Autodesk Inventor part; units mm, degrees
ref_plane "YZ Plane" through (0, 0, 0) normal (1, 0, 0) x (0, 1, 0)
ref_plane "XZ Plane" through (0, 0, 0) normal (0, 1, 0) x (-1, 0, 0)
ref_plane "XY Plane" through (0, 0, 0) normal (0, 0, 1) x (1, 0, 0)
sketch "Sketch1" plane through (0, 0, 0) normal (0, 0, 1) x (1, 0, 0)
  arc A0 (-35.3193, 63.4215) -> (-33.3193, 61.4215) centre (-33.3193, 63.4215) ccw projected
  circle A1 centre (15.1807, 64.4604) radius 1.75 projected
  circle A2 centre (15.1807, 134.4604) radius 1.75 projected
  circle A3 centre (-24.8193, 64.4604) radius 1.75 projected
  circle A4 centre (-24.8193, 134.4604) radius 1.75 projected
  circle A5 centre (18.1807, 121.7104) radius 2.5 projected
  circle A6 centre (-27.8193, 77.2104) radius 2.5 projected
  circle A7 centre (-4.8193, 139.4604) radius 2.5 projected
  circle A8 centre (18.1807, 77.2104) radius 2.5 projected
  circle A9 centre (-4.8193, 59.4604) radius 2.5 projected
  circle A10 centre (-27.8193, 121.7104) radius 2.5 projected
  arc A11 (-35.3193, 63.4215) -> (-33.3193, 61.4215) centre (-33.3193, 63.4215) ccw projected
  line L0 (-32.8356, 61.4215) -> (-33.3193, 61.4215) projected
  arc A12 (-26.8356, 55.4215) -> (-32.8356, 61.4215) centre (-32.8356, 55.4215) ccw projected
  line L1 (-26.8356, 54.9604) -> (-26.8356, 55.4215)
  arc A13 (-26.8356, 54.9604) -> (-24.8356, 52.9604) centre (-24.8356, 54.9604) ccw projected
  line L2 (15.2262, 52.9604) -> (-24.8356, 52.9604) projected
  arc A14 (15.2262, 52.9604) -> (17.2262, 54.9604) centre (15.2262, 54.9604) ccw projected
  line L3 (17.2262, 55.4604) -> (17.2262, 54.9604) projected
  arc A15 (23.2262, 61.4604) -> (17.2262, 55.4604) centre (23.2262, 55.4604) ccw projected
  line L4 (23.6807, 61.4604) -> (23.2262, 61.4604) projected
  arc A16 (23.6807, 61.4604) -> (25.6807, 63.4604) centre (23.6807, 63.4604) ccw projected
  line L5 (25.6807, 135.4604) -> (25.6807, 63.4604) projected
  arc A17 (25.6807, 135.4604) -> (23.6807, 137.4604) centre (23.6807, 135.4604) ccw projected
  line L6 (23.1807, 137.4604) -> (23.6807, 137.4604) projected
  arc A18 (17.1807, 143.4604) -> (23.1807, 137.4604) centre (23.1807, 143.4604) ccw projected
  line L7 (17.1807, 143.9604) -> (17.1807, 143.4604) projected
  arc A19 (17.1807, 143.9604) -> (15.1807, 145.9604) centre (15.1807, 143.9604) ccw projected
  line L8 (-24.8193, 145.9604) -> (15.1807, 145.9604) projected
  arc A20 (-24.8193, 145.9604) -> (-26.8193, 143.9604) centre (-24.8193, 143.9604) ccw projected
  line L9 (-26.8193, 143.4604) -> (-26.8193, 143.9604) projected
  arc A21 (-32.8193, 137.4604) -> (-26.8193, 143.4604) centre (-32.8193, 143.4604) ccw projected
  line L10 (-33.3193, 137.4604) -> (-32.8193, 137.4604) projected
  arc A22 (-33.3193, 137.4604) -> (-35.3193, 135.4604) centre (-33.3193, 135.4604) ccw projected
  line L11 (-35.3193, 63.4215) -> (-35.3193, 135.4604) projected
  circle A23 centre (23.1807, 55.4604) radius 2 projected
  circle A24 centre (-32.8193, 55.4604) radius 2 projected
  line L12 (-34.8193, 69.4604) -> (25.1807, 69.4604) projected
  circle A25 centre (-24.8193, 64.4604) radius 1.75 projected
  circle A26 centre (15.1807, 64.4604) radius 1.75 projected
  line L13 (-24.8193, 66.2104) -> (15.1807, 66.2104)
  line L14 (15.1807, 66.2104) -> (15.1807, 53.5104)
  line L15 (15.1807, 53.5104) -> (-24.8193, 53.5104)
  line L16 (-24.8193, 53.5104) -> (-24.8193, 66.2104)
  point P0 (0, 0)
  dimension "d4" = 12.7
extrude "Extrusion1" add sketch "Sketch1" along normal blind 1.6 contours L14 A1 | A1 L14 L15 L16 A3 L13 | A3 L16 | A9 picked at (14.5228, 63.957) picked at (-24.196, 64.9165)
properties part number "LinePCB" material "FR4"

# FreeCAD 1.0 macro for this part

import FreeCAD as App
import Part
import Sketcher
Q = App.Units.Quantity

doc = App.newDocument("Part")
body = doc.addObject("PartDesign::Body", "Body")

# Sketch on XY plane
sketch1 = body.newObject("Sketcher::SketchObject", "Sketch")
sketch1.AttachmentSupport = (doc.getObject("XY_Plane"), [""])
sketch1.MapMode = "FlatFace"
sketch1.addGeometry([
    Part.LineSegment(App.Vector(15.1807, 66.2104, 0), App.Vector(-24.8193, 66.2104, 0)),
    Part.LineSegment(App.Vector(-24.8193, 66.2104, 0), App.Vector(-24.8193, 53.5104, 0)),
    Part.LineSegment(App.Vector(-24.8193, 53.5104, 0), App.Vector(15.1807, 53.5104, 0)),
    Part.LineSegment(App.Vector(15.1807, 53.5104, 0), App.Vector(15.1807, 66.2104, 0)),
], False)
sketch1.addConstraint([
    Sketcher.Constraint("Coincident", 0, 2, 1, 1),
    Sketcher.Constraint("Coincident", 1, 2, 2, 1),
    Sketcher.Constraint("Coincident", 2, 2, 3, 1),
    Sketcher.Constraint("Coincident", 3, 2, 0, 1),
    Sketcher.Constraint("Horizontal", 0),
    Sketcher.Constraint("Vertical", 1),
    Sketcher.Constraint("Horizontal", 2),
    Sketcher.Constraint("Vertical", 3),
    Sketcher.Constraint("DistanceY", 1, 2, 1, 1, Q("0.5 in")),
    Sketcher.Constraint("DistanceX", 0, 2, 0, 1, Q("1.5748 in")),
    Sketcher.Constraint("DistanceY", -1, 1, 0, 2, Q("2.6067 in")),
    Sketcher.Constraint("DistanceX", 0, 2, -1, 1, Q("24.8193 mm")),
])
pad1 = body.newObject("PartDesign::Pad", "Pad")
pad1.Profile = sketch1
pad1.Length = Q("0.0629921 in")

doc.recompute()
